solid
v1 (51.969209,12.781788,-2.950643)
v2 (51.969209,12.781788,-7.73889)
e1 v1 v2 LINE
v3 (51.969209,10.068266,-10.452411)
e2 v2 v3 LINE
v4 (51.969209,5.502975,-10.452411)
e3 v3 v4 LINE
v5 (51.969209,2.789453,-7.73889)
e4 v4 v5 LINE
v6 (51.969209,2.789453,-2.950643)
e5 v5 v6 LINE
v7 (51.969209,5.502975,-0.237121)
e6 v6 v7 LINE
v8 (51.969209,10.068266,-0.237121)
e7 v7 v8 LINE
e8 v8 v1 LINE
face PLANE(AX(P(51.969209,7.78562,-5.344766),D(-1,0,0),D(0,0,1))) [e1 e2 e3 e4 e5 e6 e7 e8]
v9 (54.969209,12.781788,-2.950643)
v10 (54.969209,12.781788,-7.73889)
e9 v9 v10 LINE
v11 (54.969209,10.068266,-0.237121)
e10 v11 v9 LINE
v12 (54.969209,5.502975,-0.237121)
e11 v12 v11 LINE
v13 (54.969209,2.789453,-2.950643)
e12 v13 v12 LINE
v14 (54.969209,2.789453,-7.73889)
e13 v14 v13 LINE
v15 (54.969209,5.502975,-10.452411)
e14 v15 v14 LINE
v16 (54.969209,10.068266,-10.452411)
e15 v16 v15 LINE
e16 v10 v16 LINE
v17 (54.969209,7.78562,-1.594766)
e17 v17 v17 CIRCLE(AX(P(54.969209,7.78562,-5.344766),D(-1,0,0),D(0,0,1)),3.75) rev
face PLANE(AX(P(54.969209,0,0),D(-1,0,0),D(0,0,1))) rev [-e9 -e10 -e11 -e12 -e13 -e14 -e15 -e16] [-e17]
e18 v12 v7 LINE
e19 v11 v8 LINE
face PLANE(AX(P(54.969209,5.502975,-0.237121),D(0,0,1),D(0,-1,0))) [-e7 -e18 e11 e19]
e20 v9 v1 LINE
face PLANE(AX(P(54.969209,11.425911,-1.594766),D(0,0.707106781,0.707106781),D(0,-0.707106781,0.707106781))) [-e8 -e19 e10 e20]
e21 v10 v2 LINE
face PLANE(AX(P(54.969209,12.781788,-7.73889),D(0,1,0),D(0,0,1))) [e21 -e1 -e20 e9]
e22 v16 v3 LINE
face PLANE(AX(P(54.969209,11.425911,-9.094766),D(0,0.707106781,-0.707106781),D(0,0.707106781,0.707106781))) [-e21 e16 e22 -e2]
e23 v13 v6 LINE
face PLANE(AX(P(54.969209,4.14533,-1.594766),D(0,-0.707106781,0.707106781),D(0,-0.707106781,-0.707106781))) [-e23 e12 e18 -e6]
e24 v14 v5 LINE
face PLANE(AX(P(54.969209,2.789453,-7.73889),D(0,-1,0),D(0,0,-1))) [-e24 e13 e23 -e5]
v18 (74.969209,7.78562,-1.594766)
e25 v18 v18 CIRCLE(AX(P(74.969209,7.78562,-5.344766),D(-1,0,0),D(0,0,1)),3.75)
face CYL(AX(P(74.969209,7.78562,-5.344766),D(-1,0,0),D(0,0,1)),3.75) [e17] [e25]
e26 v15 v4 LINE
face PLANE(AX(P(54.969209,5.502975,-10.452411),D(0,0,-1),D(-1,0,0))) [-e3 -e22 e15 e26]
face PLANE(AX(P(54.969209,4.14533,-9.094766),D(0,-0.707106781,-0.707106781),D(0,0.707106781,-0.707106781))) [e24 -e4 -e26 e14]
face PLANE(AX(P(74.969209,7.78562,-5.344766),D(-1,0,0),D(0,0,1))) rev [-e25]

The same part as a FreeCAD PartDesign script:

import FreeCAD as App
import Part
import Sketcher
from FreeCAD import Vector

doc = App.newDocument("Part")
body = doc.addObject("PartDesign::Body", "Body")

# Sketch on YZ plane
sketch1 = body.newObject("Sketcher::SketchObject", "Sketch")
sketch1.AttachmentSupport = (doc.getObject("YZ_Plane"), [""])
sketch1.MapMode = "FlatFace"
sketch1.AttachmentOffset = App.Placement(Vector(0, 0, 65.969209), App.Rotation())
sketch1.addGeometry(Part.Circle(Vector(7.8, -5.3, 0), Vector(0, 0, 1), 3.8), False)
sketch1.addConstraint([
    Sketcher.Constraint("Diameter", 0, 7.5),
    Sketcher.Constraint("DistanceX", -1, 1, 0, 3, 7.78562),
    Sketcher.Constraint("DistanceY", 0, 3, -1, 1, 5.344766),
])
pad1 = body.newObject("PartDesign::Pad", "Pad")
pad1.Profile = sketch1
pad1.Type = "TwoLengths"
pad1.Length = 14
pad1.Length2 = 9
pad1.Reversed = True

# Sketch on YZ plane
sketch2 = body.newObject("Sketcher::SketchObject", "Sketch001")
sketch2.AttachmentSupport = (doc.getObject("YZ_Plane"), [""])
sketch2.MapMode = "FlatFace"
sketch2.AttachmentOffset = App.Placement(Vector(0, 0, 51.969209), App.Rotation())
sketch2.addGeometry([
    Part.LineSegment(Vector(12.8, -7.7, 0), Vector(11.4, -9.1, 0)),  # 0
    Part.LineSegment(Vector(11.4, -9.1, 0), Vector(10.1, -10.5, 0)),  # 1
    Part.LineSegment(Vector(10.1, -10.5, 0), Vector(5.5, -10.5, 0)),  # 2
    Part.LineSegment(Vector(5.5, -10.5, 0), Vector(4.1, -9.1, 0)),  # 3
    Part.LineSegment(Vector(4.1, -9.1, 0), Vector(2.8, -7.7, 0)),  # 4
    Part.LineSegment(Vector(2.8, -7.7, 0), Vector(2.8, -3, 0)),  # 5
    Part.LineSegment(Vector(2.8, -3, 0), Vector(5.5, -0.2, 0)),  # 6
    Part.LineSegment(Vector(5.5, -0.2, 0), Vector(10.1, -0.2, 0)),  # 7
    Part.LineSegment(Vector(10.1, -0.2, 0), Vector(12.8, -3, 0)),  # 8
    Part.LineSegment(Vector(12.8, -3, 0), Vector(12.8, -7.7, 0)),  # 9
], False)
sketch2.addConstraint([
    Sketcher.Constraint("Coincident", 0, 2, 1, 1),
    Sketcher.Constraint("Coincident", 1, 2, 2, 1),
    Sketcher.Constraint("Coincident", 2, 2, 3, 1),
    Sketcher.Constraint("Coincident", 3, 2, 4, 1),
    Sketcher.Constraint("Coincident", 4, 2, 5, 1),
    Sketcher.Constraint("Coincident", 5, 2, 6, 1),
    Sketcher.Constraint("Coincident", 6, 2, 7, 1),
    Sketcher.Constraint("Coincident", 7, 2, 8, 1),
    Sketcher.Constraint("Coincident", 8, 2, 9, 1),
    Sketcher.Constraint("Coincident", 9, 2, 0, 1),
    Sketcher.Constraint("Horizontal", 2),
    Sketcher.Constraint("Vertical", 5),
    Sketcher.Constraint("Horizontal", 7),
    Sketcher.Constraint("Vertical", 9),
    Sketcher.Constraint("Parallel", 0, 1),
    Sketcher.Constraint("Perpendicular", 1, 3),
    Sketcher.Constraint("Parallel", 3, 4),
    Sketcher.Constraint("Perpendicular", 4, 6),
    Sketcher.Constraint("Perpendicular", 6, 8),
    Sketcher.Constraint("Horizontal", 0, 2, 3, 2),
    Sketcher.Constraint("Horizontal", 5, 2, 8, 2),
    Sketcher.Constraint("Horizontal", 4, 2, 9, 2),
    Sketcher.Constraint("Vertical", 2, 2, 6, 2),
    Sketcher.Constraint("Vertical", 1, 2, 7, 2),
    Sketcher.Constraint("Distance", 1, 1.92),
    Sketcher.Constraint("Distance", 0, 1.917499),
    Sketcher.Constraint("DistanceX", 2, 2, 2, 1, 4.565292),
    Sketcher.Constraint("DistanceY", 5, 1, 5, 2, 4.788247),
    Sketcher.Constraint("DistanceX", -1, 1, 0, 2, 11.425911),
    Sketcher.Constraint("DistanceY", 1, 2, -1, 1, 10.452411),
])
pad2 = body.newObject("PartDesign::Pad", "Pad001")
pad2.Profile = sketch2
pad2.Length = 3

doc.recompute()
